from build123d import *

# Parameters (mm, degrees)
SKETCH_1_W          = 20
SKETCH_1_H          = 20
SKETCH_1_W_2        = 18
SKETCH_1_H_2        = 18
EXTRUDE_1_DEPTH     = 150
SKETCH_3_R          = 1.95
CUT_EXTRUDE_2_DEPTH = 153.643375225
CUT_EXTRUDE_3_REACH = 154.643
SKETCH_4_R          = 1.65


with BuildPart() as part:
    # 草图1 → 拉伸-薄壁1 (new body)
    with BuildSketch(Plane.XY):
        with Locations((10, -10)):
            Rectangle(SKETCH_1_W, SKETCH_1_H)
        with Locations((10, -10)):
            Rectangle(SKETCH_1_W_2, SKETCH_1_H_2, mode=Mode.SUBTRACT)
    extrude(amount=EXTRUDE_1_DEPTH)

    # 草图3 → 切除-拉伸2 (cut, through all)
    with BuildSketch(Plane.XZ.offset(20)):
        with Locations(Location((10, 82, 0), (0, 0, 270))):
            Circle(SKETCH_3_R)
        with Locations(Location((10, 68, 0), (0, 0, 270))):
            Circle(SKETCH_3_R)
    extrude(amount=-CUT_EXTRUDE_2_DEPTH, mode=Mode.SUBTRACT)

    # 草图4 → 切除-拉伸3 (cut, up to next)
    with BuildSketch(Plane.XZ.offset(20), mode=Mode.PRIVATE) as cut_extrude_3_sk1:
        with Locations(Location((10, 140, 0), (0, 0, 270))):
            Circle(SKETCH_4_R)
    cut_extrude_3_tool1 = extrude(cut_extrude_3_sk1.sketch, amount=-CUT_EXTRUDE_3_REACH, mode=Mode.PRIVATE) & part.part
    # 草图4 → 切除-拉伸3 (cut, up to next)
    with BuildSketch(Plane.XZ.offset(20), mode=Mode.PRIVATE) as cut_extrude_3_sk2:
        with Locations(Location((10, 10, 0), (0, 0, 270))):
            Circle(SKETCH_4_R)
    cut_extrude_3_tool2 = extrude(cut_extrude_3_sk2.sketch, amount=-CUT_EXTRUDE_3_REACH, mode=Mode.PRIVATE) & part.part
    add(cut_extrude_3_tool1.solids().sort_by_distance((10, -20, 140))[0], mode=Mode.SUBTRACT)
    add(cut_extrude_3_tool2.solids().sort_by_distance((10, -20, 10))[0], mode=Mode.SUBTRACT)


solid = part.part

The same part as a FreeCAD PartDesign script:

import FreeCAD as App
import Part
import Sketcher

V = App.Vector
Q = App.Units.Quantity

doc = App.newDocument("Part")
body = doc.addObject("PartDesign::Body", "Body")

sketch1 = body.newObject("Sketcher::SketchObject", "Sketch")
sketch1.AttachmentSupport = (doc.getObject("XY_Plane"), [""])
sketch1.MapMode = "FlatFace"
sketch1.addGeometry([
    Part.LineSegment(V(0, 0, 0), V(0, -20, 0)),
    Part.LineSegment(V(0, -20, 0), V(20, -20, 0)),
    Part.LineSegment(V(20, -20, 0), V(20, 0, 0)),
    Part.LineSegment(V(20, 0, 0), V(0, 0, 0)),
    Part.LineSegment(V(19, -19, 0), V(1, -19, 0)),
    Part.LineSegment(V(1, -19, 0), V(1, -1, 0)),
    Part.LineSegment(V(1, -1, 0), V(19, -1, 0)),
    Part.LineSegment(V(19, -1, 0), V(19, -19, 0)),
], False)
sketch1.addConstraint([
    Sketcher.Constraint("Coincident", 0, 2, 1, 1),
    Sketcher.Constraint("Coincident", 1, 2, 2, 1),
    Sketcher.Constraint("Coincident", 2, 2, 3, 1),
    Sketcher.Constraint("Coincident", 3, 2, 0, 1),
    Sketcher.Constraint("Coincident", 4, 2, 5, 1),
    Sketcher.Constraint("Coincident", 5, 2, 6, 1),
    Sketcher.Constraint("Coincident", 6, 2, 7, 1),
    Sketcher.Constraint("Coincident", 7, 2, 4, 1),
    Sketcher.Constraint("Vertical", 0),
    Sketcher.Constraint("Horizontal", 1),
    Sketcher.Constraint("Vertical", 2),
    Sketcher.Constraint("Horizontal", 3),
    Sketcher.Constraint("Horizontal", 4),
    Sketcher.Constraint("Vertical", 5),
    Sketcher.Constraint("Horizontal", 6),
    Sketcher.Constraint("Vertical", 7),
    Sketcher.Constraint("Coincident", 3, 2, -1, 1),
    Sketcher.Constraint("Equal", 3, 0),
    Sketcher.Constraint("Equal", 6, 5),
    Sketcher.Constraint("DistanceX", 1, 1, 1, 2, Q("20 mm")),
    Sketcher.Constraint("DistanceX", 4, 2, 4, 1, Q("18 mm")),
    Sketcher.Constraint("DistanceX", -1, 1, 4, 2, Q("1 mm")),
    Sketcher.Constraint("DistanceY", 4, 2, -1, 1, Q("19 mm")),
])
pad1 = body.newObject("PartDesign::Pad", "Pad")
pad1.Profile = sketch1
pad1.Length = 150

sketch2 = body.newObject("Sketcher::SketchObject", "Sketch001")
sketch2.AttachmentSupport = (doc.getObject("XZ_Plane"), [""])
sketch2.MapMode = "FlatFace"
sketch2.AttachmentOffset = App.Placement(V(0, 0, 20), App.Rotation())
sketch2.addGeometry([
    Part.Circle(V(10, 82, 0), V(0, 0, 1), 1.95),
    Part.Circle(V(10, 68, 0), V(0, 0, 1), 1.95),
], False)
sketch2.addConstraint([
    Sketcher.Constraint("Equal", 0, 1),
    Sketcher.Constraint("Vertical", 0, 3, 1, 3),
    Sketcher.Constraint("Diameter", 0, Q("3.9 mm")),
    Sketcher.Constraint("DistanceX", -1, 1, 0, 3, Q("10 mm")),
    Sketcher.Constraint("DistanceY", -1, 1, 0, 3, Q("82 mm")),
    Sketcher.Constraint("DistanceY", -1, 1, 1, 3, Q("68 mm")),
])
pocket1 = body.newObject("PartDesign::Pocket", "Pocket")
pocket1.Profile = sketch2
pocket1.Type = "ThroughAll"

sketch3 = body.newObject("Sketcher::SketchObject", "Sketch002")
sketch3.AttachmentSupport = (doc.getObject("XZ_Plane"), [""])
sketch3.MapMode = "FlatFace"
sketch3.AttachmentOffset = App.Placement(V(0, 0, 20), App.Rotation())
sketch3.addGeometry(Part.Circle(V(10, 140, 0), V(0, 0, 1), 1.65), False)
sketch3.addConstraint([
    Sketcher.Constraint("Diameter", 0, Q("3.3 mm")),
    Sketcher.Constraint("DistanceX", -1, 1, 0, 3, Q("10 mm")),
    Sketcher.Constraint("DistanceY", -1, 1, 0, 3, Q("140 mm")),
])
pocket2 = body.newObject("PartDesign::Pocket", "Pocket001")
pocket2.Profile = sketch3
pocket2.Type = "UpToFirst"

sketch4 = body.newObject("Sketcher::SketchObject", "Sketch003")
sketch4.AttachmentSupport = (doc.getObject("XZ_Plane"), [""])
sketch4.MapMode = "FlatFace"
sketch4.AttachmentOffset = App.Placement(V(0, 0, 20), App.Rotation())
sketch4.addGeometry(Part.Circle(V(10, 10, 0), V(0, 0, 1), 1.65), False)
sketch4.addConstraint([
    Sketcher.Constraint("Diameter", 0, Q("3.3 mm")),
    Sketcher.Constraint("DistanceX", -1, 1, 0, 3, Q("10 mm")),
    Sketcher.Constraint("DistanceY", -1, 1, 0, 3, Q("10 mm")),
])
pocket3 = body.newObject("PartDesign::Pocket", "Pocket002")
pocket3.Profile = sketch4
pocket3.Type = "UpToFirst"

doc.recompute()
